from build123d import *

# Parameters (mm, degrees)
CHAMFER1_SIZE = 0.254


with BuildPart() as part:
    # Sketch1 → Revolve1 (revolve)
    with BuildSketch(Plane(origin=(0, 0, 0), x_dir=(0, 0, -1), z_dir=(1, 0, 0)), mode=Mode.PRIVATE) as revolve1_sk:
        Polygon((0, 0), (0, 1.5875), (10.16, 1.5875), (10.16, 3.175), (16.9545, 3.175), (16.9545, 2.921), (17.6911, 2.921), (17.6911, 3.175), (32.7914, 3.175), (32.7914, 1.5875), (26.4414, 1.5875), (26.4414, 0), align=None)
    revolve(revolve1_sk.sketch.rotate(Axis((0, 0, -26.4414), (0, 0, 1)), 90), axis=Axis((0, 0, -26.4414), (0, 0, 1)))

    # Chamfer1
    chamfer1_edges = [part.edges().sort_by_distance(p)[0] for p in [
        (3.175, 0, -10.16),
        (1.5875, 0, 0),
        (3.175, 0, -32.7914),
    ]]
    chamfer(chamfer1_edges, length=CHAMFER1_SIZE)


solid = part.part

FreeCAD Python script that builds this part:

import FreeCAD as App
import Part
import Sketcher
from FreeCAD import Vector
Q = App.Units.Quantity


def edges_at(feature, points):
    """Names of the edges that pass closest to the given points."""
    edges = feature.Shape.Edges
    near = lambda p: min(range(len(edges)), key=lambda i: edges[i].distToShape(Part.Vertex(*p))[0])
    return sorted({f"Edge{near(p) + 1}" for p in points})

doc = App.newDocument("Part")
body = doc.addObject("PartDesign::Body", "Body")

# Sketch on YZ plane
sketch1 = body.newObject("Sketcher::SketchObject", "Sketch")
sketch1.AttachmentSupport = (doc.getObject("YZ_Plane"), [""])
sketch1.MapMode = "FlatFace"
sketch1.addGeometry([
    Part.LineSegment(Vector(1.59, 0, 0), Vector(0, 0, 0)),  # 0
    Part.LineSegment(Vector(0, 0, 0), Vector(0, -26.44, 0)),  # 1
    Part.LineSegment(Vector(0, -26.44, 0), Vector(1.59, -26.44, 0)),  # 2
    Part.LineSegment(Vector(1.59, -26.44, 0), Vector(1.59, -32.79, 0)),  # 3
    Part.LineSegment(Vector(1.59, -32.79, 0), Vector(3.17, -32.79, 0)),  # 4
    Part.LineSegment(Vector(3.17, -32.79, 0), Vector(3.17, -17.69, 0)),  # 5
    Part.LineSegment(Vector(3.17, -17.69, 0), Vector(2.92, -17.69, 0)),  # 6
    Part.LineSegment(Vector(2.92, -17.69, 0), Vector(2.92, -16.95, 0)),  # 7
    Part.LineSegment(Vector(2.92, -16.95, 0), Vector(3.17, -16.95, 0)),  # 8
    Part.LineSegment(Vector(3.17, -16.95, 0), Vector(3.17, -10.16, 0)),  # 9
    Part.LineSegment(Vector(3.17, -10.16, 0), Vector(1.59, -10.16, 0)),  # 10
    Part.LineSegment(Vector(1.59, -10.16, 0), Vector(1.59, 0, 0)),  # 11
], False)
sketch1.addConstraint([
    Sketcher.Constraint("Coincident", 0, 2, 1, 1),
    Sketcher.Constraint("Coincident", 1, 2, 2, 1),
    Sketcher.Constraint("Coincident", 2, 2, 3, 1),
    Sketcher.Constraint("Coincident", 3, 2, 4, 1),
    Sketcher.Constraint("Coincident", 4, 2, 5, 1),
    Sketcher.Constraint("Coincident", 5, 2, 6, 1),
    Sketcher.Constraint("Coincident", 6, 2, 7, 1),
    Sketcher.Constraint("Coincident", 7, 2, 8, 1),
    Sketcher.Constraint("Coincident", 8, 2, 9, 1),
    Sketcher.Constraint("Coincident", 9, 2, 10, 1),
    Sketcher.Constraint("Coincident", 10, 2, 11, 1),
    Sketcher.Constraint("Coincident", 11, 2, 0, 1),
    Sketcher.Constraint("Horizontal", 0),
    Sketcher.Constraint("Vertical", 1),
    Sketcher.Constraint("Horizontal", 2),
    Sketcher.Constraint("Vertical", 3),
    Sketcher.Constraint("Horizontal", 4),
    Sketcher.Constraint("Vertical", 5),
    Sketcher.Constraint("Horizontal", 6),
    Sketcher.Constraint("Vertical", 7),
    Sketcher.Constraint("Horizontal", 8),
    Sketcher.Constraint("Vertical", 9),
    Sketcher.Constraint("Horizontal", 10),
    Sketcher.Constraint("Vertical", 11),
    Sketcher.Constraint("Coincident", 0, 2, -1, 1),
    Sketcher.Constraint("Vertical", 5, 2, 8, 2),
    Sketcher.Constraint("Vertical", 3, 2, 10, 2),
    Sketcher.Constraint("Equal", 2, 4),
    Sketcher.Constraint("DistanceY", 11, 1, 11, 2, Q("0.4 in")),
    Sketcher.Constraint("DistanceX", 6, 2, 6, 1, Q("0.01 in")),
    Sketcher.Constraint("DistanceY", 3, 2, 3, 1, Q("0.25 in")),
    Sketcher.Constraint("DistanceX", 0, 2, 0, 1, Q("0.0625 in")),
    Sketcher.Constraint("DistanceY", 1, 2, 1, 1, Q("1.041 in")),
    Sketcher.Constraint("DistanceY", 7, 1, 7, 2, Q("0.029 in")),
    Sketcher.Constraint("DistanceY", 5, 1, 5, 2, Q("0.5945 in")),
])
revolution = body.newObject("PartDesign::Revolution", "Revolution")
revolution.Profile = sketch1
revolution.ReferenceAxis = (sketch1, ["V_Axis"])
revolution.Angle = 360
doc.recompute()

chamfer = body.newObject("PartDesign::Chamfer", "Chamfer")
chamfer.Base = (revolution, edges_at(revolution, [(3.175, 0, -10.16), (1.587, 0, 0), (3.175, 0, -32.791)]))
chamfer.Size = Q("0.01 in")

doc.recompute()
